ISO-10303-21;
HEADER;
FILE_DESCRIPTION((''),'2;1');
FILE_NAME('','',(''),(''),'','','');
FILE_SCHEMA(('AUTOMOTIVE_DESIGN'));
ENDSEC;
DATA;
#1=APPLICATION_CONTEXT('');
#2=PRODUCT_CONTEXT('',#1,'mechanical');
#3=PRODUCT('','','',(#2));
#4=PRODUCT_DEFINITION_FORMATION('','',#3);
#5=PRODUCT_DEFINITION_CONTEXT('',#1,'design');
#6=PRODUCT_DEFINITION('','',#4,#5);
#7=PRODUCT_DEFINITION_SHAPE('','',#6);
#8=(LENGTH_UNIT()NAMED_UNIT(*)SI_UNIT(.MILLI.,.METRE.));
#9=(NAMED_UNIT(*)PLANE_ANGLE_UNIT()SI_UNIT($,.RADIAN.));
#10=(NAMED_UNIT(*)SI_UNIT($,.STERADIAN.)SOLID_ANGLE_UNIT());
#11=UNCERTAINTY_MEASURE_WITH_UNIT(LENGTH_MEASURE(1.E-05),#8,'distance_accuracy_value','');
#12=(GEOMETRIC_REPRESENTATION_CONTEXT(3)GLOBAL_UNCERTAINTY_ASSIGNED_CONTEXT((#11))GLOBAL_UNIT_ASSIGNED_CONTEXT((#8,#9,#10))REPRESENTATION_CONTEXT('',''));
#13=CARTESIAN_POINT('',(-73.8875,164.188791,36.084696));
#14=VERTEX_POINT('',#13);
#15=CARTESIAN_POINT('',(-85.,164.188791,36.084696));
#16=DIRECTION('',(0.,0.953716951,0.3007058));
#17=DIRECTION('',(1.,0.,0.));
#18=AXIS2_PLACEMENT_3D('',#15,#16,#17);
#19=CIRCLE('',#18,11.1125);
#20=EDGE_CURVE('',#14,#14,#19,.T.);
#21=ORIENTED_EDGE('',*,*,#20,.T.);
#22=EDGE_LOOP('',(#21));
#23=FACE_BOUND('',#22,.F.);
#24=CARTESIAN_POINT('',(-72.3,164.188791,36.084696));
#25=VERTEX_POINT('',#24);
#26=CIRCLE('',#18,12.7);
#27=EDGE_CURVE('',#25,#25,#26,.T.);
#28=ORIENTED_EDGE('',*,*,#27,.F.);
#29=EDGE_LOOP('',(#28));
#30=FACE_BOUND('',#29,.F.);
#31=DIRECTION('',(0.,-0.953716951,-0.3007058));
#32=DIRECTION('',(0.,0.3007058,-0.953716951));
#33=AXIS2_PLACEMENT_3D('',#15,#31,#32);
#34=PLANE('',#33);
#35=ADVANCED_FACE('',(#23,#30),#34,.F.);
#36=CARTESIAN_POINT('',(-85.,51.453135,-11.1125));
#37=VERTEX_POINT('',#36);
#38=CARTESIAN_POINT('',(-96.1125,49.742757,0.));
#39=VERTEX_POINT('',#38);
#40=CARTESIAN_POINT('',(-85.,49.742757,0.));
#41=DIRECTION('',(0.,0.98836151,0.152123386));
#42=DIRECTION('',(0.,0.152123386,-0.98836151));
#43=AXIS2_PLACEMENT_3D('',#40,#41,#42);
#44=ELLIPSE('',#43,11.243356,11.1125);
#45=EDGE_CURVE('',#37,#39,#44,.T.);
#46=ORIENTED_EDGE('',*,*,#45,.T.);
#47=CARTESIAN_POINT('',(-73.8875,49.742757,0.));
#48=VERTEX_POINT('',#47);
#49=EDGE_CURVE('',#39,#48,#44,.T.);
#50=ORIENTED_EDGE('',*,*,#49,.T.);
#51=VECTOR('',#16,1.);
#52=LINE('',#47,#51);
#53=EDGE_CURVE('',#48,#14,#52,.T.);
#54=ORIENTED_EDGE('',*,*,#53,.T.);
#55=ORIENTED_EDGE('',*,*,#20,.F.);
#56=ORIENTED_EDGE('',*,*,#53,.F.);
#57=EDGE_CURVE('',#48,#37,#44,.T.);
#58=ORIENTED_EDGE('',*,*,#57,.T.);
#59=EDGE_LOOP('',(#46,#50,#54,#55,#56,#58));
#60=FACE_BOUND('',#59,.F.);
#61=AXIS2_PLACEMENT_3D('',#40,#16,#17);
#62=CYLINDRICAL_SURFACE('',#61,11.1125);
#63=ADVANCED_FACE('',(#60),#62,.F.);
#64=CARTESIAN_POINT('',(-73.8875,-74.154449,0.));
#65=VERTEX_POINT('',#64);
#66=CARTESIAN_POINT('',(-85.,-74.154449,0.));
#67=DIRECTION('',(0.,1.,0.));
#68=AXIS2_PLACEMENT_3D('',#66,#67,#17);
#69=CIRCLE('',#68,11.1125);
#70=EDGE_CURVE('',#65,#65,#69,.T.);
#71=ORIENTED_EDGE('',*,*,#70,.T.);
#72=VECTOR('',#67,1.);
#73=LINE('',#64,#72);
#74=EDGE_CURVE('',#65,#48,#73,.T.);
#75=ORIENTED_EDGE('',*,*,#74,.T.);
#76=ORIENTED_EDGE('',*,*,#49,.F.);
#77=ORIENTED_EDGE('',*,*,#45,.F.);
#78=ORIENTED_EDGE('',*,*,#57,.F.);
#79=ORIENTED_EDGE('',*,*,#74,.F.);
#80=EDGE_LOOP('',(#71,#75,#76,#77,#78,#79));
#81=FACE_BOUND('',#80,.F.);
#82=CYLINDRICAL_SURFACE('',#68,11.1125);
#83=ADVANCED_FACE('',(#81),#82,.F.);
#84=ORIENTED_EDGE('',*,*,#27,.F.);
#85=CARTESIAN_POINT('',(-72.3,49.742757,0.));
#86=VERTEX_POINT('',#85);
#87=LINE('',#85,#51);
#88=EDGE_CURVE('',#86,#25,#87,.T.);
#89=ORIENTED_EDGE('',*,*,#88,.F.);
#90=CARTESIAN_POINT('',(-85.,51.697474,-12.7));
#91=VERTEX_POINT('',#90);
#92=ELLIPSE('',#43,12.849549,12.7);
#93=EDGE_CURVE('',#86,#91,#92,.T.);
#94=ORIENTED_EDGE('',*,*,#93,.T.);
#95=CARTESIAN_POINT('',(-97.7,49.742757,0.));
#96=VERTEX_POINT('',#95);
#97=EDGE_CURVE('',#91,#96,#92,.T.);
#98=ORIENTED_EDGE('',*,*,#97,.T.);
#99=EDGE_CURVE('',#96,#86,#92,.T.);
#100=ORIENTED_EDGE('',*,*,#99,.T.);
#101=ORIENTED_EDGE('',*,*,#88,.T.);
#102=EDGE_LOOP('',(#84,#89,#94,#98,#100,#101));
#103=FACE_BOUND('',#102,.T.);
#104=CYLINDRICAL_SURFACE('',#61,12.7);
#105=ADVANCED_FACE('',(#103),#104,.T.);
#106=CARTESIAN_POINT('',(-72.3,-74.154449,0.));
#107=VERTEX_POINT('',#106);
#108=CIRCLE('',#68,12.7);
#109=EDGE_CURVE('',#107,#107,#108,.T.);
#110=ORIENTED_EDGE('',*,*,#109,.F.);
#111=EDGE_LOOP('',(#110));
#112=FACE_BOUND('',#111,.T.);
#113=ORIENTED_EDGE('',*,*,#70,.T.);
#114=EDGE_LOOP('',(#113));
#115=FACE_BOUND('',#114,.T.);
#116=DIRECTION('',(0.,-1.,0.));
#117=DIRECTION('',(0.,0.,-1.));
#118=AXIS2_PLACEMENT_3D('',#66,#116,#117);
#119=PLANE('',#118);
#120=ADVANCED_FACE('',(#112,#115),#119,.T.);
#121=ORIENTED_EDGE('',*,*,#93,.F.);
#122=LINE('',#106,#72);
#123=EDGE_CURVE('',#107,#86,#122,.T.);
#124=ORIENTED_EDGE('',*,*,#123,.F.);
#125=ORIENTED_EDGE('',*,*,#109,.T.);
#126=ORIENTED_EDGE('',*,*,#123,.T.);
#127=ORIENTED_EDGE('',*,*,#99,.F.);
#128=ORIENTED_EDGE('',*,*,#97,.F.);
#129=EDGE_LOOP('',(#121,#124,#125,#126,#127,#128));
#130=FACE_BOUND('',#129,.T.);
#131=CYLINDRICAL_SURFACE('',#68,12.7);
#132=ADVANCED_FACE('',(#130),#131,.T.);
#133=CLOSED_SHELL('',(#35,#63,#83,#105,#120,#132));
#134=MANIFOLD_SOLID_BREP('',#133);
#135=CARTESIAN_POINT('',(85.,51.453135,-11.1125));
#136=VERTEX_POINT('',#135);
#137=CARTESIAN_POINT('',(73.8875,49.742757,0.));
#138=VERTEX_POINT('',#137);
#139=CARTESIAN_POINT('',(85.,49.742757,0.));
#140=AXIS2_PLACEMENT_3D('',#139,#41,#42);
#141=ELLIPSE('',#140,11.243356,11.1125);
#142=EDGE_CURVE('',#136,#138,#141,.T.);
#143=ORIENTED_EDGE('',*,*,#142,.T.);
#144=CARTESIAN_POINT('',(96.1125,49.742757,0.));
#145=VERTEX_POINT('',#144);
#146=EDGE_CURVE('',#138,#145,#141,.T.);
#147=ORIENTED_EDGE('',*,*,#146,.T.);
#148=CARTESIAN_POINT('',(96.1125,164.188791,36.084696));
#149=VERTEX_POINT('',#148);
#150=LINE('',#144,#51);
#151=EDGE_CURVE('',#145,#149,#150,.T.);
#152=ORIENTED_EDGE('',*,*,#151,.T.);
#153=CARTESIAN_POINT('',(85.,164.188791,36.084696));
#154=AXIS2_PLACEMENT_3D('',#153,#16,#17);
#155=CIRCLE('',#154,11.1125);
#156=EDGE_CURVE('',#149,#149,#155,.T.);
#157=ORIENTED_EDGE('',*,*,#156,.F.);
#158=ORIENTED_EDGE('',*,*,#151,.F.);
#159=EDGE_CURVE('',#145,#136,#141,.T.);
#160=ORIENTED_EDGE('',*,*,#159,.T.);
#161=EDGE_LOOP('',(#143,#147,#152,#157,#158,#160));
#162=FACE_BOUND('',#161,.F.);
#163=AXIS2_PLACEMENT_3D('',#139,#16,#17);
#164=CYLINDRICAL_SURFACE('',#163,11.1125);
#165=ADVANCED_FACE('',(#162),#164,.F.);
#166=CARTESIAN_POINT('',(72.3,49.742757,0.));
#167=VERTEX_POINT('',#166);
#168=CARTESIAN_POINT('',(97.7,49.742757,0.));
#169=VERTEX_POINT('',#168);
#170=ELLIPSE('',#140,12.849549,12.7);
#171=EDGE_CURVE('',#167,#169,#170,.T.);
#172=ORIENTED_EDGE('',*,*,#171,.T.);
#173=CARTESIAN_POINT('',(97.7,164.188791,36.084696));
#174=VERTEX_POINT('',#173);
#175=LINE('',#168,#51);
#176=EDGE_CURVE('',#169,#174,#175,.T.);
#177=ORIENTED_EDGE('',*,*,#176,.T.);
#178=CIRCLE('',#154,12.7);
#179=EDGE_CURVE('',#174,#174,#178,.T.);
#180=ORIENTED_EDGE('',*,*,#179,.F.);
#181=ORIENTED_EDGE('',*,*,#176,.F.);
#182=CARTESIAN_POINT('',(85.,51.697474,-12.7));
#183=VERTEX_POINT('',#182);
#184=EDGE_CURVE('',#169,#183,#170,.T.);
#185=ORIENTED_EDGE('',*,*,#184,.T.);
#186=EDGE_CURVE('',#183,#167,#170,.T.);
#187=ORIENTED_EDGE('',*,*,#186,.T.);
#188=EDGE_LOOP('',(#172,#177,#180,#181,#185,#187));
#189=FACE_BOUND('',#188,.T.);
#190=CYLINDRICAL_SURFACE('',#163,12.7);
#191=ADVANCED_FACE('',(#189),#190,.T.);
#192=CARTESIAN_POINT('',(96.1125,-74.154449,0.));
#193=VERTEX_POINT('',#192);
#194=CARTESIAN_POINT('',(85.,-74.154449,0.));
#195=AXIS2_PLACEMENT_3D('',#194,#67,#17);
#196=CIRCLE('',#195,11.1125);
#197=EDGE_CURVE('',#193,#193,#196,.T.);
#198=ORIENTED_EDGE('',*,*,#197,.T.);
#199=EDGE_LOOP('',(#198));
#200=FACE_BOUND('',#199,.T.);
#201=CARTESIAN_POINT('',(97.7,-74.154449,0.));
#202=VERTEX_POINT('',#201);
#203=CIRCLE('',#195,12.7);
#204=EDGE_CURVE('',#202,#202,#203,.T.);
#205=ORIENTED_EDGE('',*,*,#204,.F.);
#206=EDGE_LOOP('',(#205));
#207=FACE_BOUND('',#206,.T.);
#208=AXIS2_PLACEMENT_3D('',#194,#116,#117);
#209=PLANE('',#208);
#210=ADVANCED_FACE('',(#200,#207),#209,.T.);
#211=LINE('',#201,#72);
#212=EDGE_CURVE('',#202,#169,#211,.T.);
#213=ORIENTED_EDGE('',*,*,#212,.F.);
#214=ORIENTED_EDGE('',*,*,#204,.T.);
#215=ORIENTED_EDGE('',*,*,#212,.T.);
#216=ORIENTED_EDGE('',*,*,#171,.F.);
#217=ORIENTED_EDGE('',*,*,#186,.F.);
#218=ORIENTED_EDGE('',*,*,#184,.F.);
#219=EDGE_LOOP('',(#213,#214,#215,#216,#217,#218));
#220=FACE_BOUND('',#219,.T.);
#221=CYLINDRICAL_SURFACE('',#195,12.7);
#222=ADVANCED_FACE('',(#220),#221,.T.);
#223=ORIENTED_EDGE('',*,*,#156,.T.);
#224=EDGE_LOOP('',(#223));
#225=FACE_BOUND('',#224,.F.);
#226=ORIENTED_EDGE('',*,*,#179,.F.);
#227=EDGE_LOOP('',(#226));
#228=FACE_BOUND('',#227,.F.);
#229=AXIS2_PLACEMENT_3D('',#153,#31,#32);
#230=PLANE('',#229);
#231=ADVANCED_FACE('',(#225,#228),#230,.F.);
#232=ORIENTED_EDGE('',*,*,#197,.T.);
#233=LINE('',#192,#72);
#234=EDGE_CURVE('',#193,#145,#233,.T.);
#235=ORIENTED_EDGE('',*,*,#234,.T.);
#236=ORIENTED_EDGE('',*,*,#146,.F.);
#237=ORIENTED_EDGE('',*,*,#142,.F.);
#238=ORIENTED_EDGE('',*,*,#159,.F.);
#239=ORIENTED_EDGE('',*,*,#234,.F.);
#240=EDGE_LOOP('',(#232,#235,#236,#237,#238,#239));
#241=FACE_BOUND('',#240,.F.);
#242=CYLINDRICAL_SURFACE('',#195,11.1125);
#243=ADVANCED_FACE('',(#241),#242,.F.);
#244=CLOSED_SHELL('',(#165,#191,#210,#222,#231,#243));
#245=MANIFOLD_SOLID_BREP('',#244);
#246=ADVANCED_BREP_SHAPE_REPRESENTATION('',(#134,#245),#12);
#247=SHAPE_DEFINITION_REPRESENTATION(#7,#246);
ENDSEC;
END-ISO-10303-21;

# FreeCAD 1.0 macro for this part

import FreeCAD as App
import Part
import Sketcher
from FreeCAD import Vector
Q = App.Units.Quantity

doc = App.newDocument("Part")
params = doc.addObject("Spreadsheet::Sheet", "Params")
for row, (alias, value) in enumerate([
    ("sketch1_diameter", "1 in"),
    ("sketch1_diameter2", "0.875 in"),
    ("sketch3_diameter", "1 in"),
    ("sketch3_diameter2", "0.875 in"),
], start=1):
    params.set(f"A{row}", alias)
    params.set(f"B{row}", "=" + value)
    params.setAlias(f"B{row}", alias)

body = doc.addObject("PartDesign::Body", "Body")

# Sketch on XZ plane
sketch1 = body.newObject("Sketcher::SketchObject", "Sketch")
sketch1.AttachmentSupport = (doc.getObject("XZ_Plane"), [""])
sketch1.MapMode = "FlatFace"
sketch1.AttachmentOffset = App.Placement(Vector(0, 0, 74.154449), App.Rotation())
sketch1.addGeometry([
    Part.Circle(Vector(-85, 0, 0), Vector(0, 0, 1), 13),
    Part.Circle(Vector(-85, 0, 0), Vector(0, 0, 1), 11),
], False)
sketch1.addConstraint([
    Sketcher.Constraint("Coincident", 1, 3, 0, 3),
    Sketcher.Constraint("PointOnObject", 0, 3, -1),
    Sketcher.Constraint("Diameter", 0, Q("1 in")),
    Sketcher.Constraint("Diameter", 1, Q("0.875 in")),
    Sketcher.Constraint("DistanceX", 0, 3, -1, 1, Q("85 mm")),
])
sketch1.setExpression("Constraints[2]", "Params.sketch1_diameter")
sketch1.setExpression("Constraints[3]", "Params.sketch1_diameter2")

# Sketch on YZ plane
sketch2 = body.newObject("Sketcher::SketchObject", "Sketch001")
sketch2.AttachmentSupport = (doc.getObject("YZ_Plane"), [""])
sketch2.MapMode = "FlatFace"
sketch2.AttachmentOffset = App.Placement(Vector(0, 0, -85), App.Rotation())
sketch2.addGeometry([
    Part.LineSegment(Vector(-74, 0, 0), Vector(50, 0, 0)),
    Part.LineSegment(Vector(50, 0, 0), Vector(164, 36, 0)),
], False)
sketch2.addConstraint([
    Sketcher.Constraint("Coincident", 0, 2, 1, 1),
    Sketcher.Constraint("Horizontal", 0),
    Sketcher.Constraint("PointOnObject", 0, 1, -1),
    Sketcher.Constraint("Angle", 1, Q("17.5 deg")),
    Sketcher.Constraint("Distance", 1, Q("120 mm")),
    Sketcher.Constraint("DistanceX", 0, 1, 0, 2, Q("123.897206 mm")),
    Sketcher.Constraint("DistanceX", 0, 1, -1, 1, Q("74.154449 mm")),
])
doc.recompute()

additivepipe = body.newObject("PartDesign::AdditivePipe", "AdditivePipe")
additivepipe.Profile = sketch1
additivepipe.Spine = (sketch2, ["Edge1", "Edge2"])
additivepipe.Transition = "Right corner"
body2 = doc.addObject("PartDesign::Body", "Body001")

# Sketch on XZ plane
sketch3 = body2.newObject("Sketcher::SketchObject", "Sketch002")
sketch3.AttachmentSupport = (doc.getObject("XZ_Plane001"), [""])
sketch3.MapMode = "FlatFace"
sketch3.AttachmentOffset = App.Placement(Vector(0, 0, 74.154449), App.Rotation())
sketch3.addGeometry([
    Part.Circle(Vector(85, 0, 0), Vector(0, 0, 1), 13),
    Part.Circle(Vector(85, 0, 0), Vector(0, 0, 1), 11),
], False)
sketch3.addConstraint([
    Sketcher.Constraint("Coincident", 1, 3, 0, 3),
    Sketcher.Constraint("PointOnObject", 0, 3, -1),
    Sketcher.Constraint("Diameter", 0, Q("1 in")),
    Sketcher.Constraint("Diameter", 1, Q("0.875 in")),
    Sketcher.Constraint("DistanceX", -1, 1, 0, 3, Q("85 mm")),
])
sketch3.setExpression("Constraints[2]", "Params.sketch3_diameter")
sketch3.setExpression("Constraints[3]", "Params.sketch3_diameter2")

# Sketch on YZ plane
sketch4 = body2.newObject("Sketcher::SketchObject", "Sketch003")
sketch4.AttachmentSupport = (doc.getObject("YZ_Plane001"), [""])
sketch4.MapMode = "FlatFace"
sketch4.AttachmentOffset = App.Placement(Vector(0, 0, 85), App.Rotation())
sketch4.addGeometry([
    Part.LineSegment(Vector(-74, 0, 0), Vector(50, 0, 0)),
    Part.LineSegment(Vector(50, 0, 0), Vector(164, 36, 0)),
], False)
sketch4.addConstraint([
    Sketcher.Constraint("Coincident", 0, 2, 1, 1),
    Sketcher.Constraint("Horizontal", 0),
    Sketcher.Constraint("PointOnObject", 0, 1, -1),
    Sketcher.Constraint("Angle", 1, Q("17.5 deg")),
    Sketcher.Constraint("Distance", 1, Q("120 mm")),
    Sketcher.Constraint("DistanceX", 0, 1, 0, 2, Q("123.897206 mm")),
    Sketcher.Constraint("DistanceX", 0, 1, -1, 1, Q("74.154449 mm")),
])
doc.recompute()

additivepipe2 = body2.newObject("PartDesign::AdditivePipe", "AdditivePipe001")
additivepipe2.Profile = sketch3
additivepipe2.Spine = (sketch4, ["Edge1", "Edge2"])
additivepipe2.Transition = "Right corner"

doc.recompute()
